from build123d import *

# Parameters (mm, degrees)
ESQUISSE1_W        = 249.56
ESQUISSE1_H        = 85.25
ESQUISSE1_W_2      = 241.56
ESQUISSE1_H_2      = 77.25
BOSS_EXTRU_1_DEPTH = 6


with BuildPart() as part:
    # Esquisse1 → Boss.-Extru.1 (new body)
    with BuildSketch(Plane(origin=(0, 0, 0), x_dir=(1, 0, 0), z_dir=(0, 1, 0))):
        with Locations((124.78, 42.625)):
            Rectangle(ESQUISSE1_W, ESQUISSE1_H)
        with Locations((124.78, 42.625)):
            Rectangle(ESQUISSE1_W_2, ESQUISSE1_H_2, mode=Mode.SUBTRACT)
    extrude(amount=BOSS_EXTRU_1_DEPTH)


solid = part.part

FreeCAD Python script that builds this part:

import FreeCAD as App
import Part
import Sketcher


def add_polygon(sketch, points):
    """Adds a closed chain of lines whose ends are joined by coincident constraints."""
    first, n = sketch.GeometryCount, len(points)
    for a, b in zip(points, points[1:] + points[:1]):
        sketch.addGeometry(Part.LineSegment(App.Vector(*a, 0), App.Vector(*b, 0)), False)
    for i in range(n):
        sketch.addConstraint(Sketcher.Constraint("Coincident", first + i, 2, first + (i + 1) % n, 1))

doc = App.newDocument("Part")
body = doc.addObject("PartDesign::Body", "Body")

# Sketch on XZ plane
sketch1 = doc.addObject("Sketcher::SketchObject", "Sketch")
body.addObject(sketch1)
sketch1.AttachmentSupport = (doc.XZ_Plane, [""])
sketch1.MapMode = "FlatFace"
add_polygon(sketch1, [(0, -85), (0, 0), (250, 0), (250, -85)])  # lines 0-3
add_polygon(sketch1, [(246, -4), (4, -4), (4, -81), (246, -81)])  # lines 4-7
sketch1.addConstraint([
    Sketcher.Constraint("Vertical", 0),
    Sketcher.Constraint("Horizontal", 1),
    Sketcher.Constraint("Vertical", 2),
    Sketcher.Constraint("Horizontal", 3),
    Sketcher.Constraint("Horizontal", 4),
    Sketcher.Constraint("Vertical", 5),
    Sketcher.Constraint("Horizontal", 6),
    Sketcher.Constraint("Vertical", 7),
    Sketcher.Constraint("Coincident", 0, 2, -1, 1),
    Sketcher.Constraint("DistanceX", -1, 1, 4, 2, 4.0),
    Sketcher.Constraint("DistanceY", 4, 2, -1, 1, 4.0),
    Sketcher.Constraint("DistanceY", 3, 2, 5, 2, 4.0),
    Sketcher.Constraint("DistanceX", 6, 2, 2, 2, 4.0),
    Sketcher.Constraint("DistanceX", 1, 1, 1, 2, 249.56),
    Sketcher.Constraint("DistanceY", 0, 1, 0, 2, 85.25),
])
pad1 = doc.addObject("PartDesign::Pad", "Pad")
body.addObject(pad1)
pad1.Profile = sketch1
pad1.Length = 6
pad1.Reversed = True

doc.recompute()
